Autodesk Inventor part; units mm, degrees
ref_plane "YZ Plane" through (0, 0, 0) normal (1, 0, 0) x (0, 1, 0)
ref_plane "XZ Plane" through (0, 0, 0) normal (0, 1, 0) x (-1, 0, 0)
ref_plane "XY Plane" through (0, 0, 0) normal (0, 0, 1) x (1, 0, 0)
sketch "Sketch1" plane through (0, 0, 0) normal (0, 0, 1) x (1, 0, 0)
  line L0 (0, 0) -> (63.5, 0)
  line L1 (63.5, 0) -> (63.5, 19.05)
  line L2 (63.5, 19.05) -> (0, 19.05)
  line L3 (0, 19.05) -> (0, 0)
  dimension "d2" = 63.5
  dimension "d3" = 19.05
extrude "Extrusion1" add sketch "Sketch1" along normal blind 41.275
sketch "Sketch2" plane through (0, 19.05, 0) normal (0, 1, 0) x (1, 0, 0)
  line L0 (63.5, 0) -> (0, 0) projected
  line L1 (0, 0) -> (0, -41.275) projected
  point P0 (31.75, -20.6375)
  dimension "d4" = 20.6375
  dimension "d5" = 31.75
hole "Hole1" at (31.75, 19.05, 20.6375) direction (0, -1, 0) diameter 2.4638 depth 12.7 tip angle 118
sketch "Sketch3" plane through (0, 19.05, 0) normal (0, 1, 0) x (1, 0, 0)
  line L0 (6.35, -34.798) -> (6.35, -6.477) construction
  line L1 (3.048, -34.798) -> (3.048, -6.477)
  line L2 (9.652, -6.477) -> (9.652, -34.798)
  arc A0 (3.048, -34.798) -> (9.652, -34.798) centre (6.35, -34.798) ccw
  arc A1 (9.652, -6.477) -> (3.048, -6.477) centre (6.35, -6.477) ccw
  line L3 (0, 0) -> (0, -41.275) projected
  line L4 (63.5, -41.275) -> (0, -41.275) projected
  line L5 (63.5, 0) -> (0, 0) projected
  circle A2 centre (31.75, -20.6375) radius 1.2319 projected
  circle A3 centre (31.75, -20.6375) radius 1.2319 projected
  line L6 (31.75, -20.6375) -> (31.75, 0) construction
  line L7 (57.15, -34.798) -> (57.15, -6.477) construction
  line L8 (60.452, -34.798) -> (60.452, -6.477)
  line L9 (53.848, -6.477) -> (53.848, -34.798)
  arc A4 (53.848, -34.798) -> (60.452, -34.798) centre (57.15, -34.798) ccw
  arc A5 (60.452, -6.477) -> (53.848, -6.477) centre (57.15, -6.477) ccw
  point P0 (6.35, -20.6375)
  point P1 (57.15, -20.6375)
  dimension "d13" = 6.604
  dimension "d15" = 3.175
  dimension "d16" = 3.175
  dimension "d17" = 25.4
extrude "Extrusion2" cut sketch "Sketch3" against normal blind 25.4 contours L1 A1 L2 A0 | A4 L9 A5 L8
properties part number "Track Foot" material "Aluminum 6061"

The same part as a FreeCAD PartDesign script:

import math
import FreeCAD as App
import Part
import Sketcher

V = App.Vector
Q = App.Units.Quantity


def add_polygon(sketch, points):
    """Adds a closed chain of lines whose ends are joined by coincident constraints."""
    first, n = sketch.GeometryCount, len(points)
    for a, b in zip(points, points[1:] + points[:1]):
        sketch.addGeometry(Part.LineSegment(App.Vector(*a, 0), App.Vector(*b, 0)), False)
    for i in range(n):
        sketch.addConstraint(Sketcher.Constraint("Coincident", first + i, 2, first + (i + 1) % n, 1))

doc = App.newDocument("Part")
body = doc.addObject("PartDesign::Body", "Body")

# Sketch on XY plane
sketch1 = body.newObject("Sketcher::SketchObject", "Sketch")
sketch1.AttachmentSupport = (doc.getObject("XY_Plane"), [""])
sketch1.MapMode = "FlatFace"
add_polygon(sketch1, [(0, 19), (0, 0), (64, 0), (64, 19)])  # lines 0-3
sketch1.addConstraint([
    Sketcher.Constraint("Vertical", 0),
    Sketcher.Constraint("Horizontal", 1),
    Sketcher.Constraint("Vertical", 2),
    Sketcher.Constraint("Horizontal", 3),
    Sketcher.Constraint("Coincident", 0, 2, -1, 1),
    Sketcher.Constraint("DistanceX", 1, 1, 1, 2, Q("2.5 in")),
    Sketcher.Constraint("DistanceY", 0, 2, 0, 1, Q("0.75 in")),
])
pad1 = body.newObject("PartDesign::Pad", "Pad")
pad1.Profile = sketch1
pad1.Length = Q("1.625 in")

# Sketch on XZ plane
sketch2 = body.newObject("Sketcher::SketchObject", "Sketch001")
sketch2.AttachmentSupport = (doc.getObject("XZ_Plane"), [""])
sketch2.MapMode = "FlatFace"
sketch2.AttachmentOffset = App.Placement(V(0, 0, -0.75 * 25.4), App.Rotation())
sketch2.addGeometry(Part.Circle(V(31.8, 20.6, 0), V(0, 0, 1), 1.2), False)
sketch2.addConstraint([
    Sketcher.Constraint("Diameter", 0, Q("0.097 in")),
    Sketcher.Constraint("DistanceX", -1, 1, 0, 3, Q("1.25 in")),
    Sketcher.Constraint("DistanceY", -1, 1, 0, 3, Q("0.8125 in")),
])
doc.recompute()
hole = body.newObject("PartDesign::Hole", "Hole")
hole.Profile = sketch2
hole.ThreadType = "None"
hole.Diameter = Q("0.097 in")
hole.DepthType = "Dimension"
hole.Depth = Q("0.5 in")
hole.DrillPoint = "Angled"
hole.DrillPointAngle = 118
hole.Reversed = True

# Sketch on XZ plane
sketch3 = body.newObject("Sketcher::SketchObject", "Sketch002")
sketch3.AttachmentSupport = (doc.getObject("XZ_Plane"), [""])
sketch3.MapMode = "FlatFace"
sketch3.AttachmentOffset = App.Placement(V(0, 0, -0.75 * 25.4), App.Rotation())
sketch3.addGeometry([
    Part.LineSegment(V(3, 6.5, 0), V(3, 34.8, 0)),  # 0
    Part.ArcOfCircle(Part.Circle(V(6.3, 34.8, 0), V(0, 0, 1), 3.3), math.radians(0), math.radians(180)),  # 1
    Part.LineSegment(V(9.7, 34.8, 0), V(9.7, 6.5, 0)),  # 2
    Part.ArcOfCircle(Part.Circle(V(6.3, 6.5, 0), V(0, 0, 1), 3.3), math.radians(180), math.radians(360)),  # 3
    Part.ArcOfCircle(Part.Circle(V(57.1, 34.8, 0), V(0, 0, 1), 3.3), math.radians(0), math.radians(180)),  # 4
    Part.LineSegment(V(60.5, 34.8, 0), V(60.5, 6.5, 0)),  # 5
    Part.ArcOfCircle(Part.Circle(V(57.1, 6.5, 0), V(0, 0, 1), 3.3), math.radians(180), math.radians(360)),  # 6
    Part.LineSegment(V(53.8, 6.5, 0), V(53.8, 34.8, 0)),  # 7
], False)
sketch3.addConstraint([
    Sketcher.Constraint("Tangent", 0, 2, 1, 2),
    Sketcher.Constraint("Tangent", 1, 1, 2, 1),
    Sketcher.Constraint("Tangent", 2, 2, 3, 2),
    Sketcher.Constraint("Tangent", 3, 1, 0, 1),
    Sketcher.Constraint("Tangent", 4, 1, 5, 1),
    Sketcher.Constraint("Tangent", 5, 2, 6, 2),
    Sketcher.Constraint("Tangent", 6, 1, 7, 1),
    Sketcher.Constraint("Tangent", 7, 2, 4, 2),
    Sketcher.Constraint("Vertical", 0),
    Sketcher.Constraint("Vertical", 2),
    Sketcher.Constraint("Vertical", 5),
    Sketcher.Constraint("Vertical", 7),
    Sketcher.Constraint("Equal", 3, 4),
    Sketcher.Constraint("Horizontal", 1, 3, 4, 3),
    Sketcher.Constraint("Horizontal", 3, 3, 6, 3),
    Sketcher.Constraint("Radius", 1, Q("0.13 in")),
    Sketcher.Constraint("DistanceX", 1, 3, 4, 3, Q("2 in")),
    Sketcher.Constraint("DistanceY", 0, 1, 0, 2, Q("1.115 in")),
    Sketcher.Constraint("DistanceX", -1, 1, 1, 3, Q("0.25 in")),
    Sketcher.Constraint("DistanceY", -1, 1, 1, 3, Q("1.37 in")),
])
pocket1 = body.newObject("PartDesign::Pocket", "Pocket")
pocket1.Profile = sketch3
pocket1.Length = Q("1 in")
pocket1.Reversed = True

doc.recompute()
